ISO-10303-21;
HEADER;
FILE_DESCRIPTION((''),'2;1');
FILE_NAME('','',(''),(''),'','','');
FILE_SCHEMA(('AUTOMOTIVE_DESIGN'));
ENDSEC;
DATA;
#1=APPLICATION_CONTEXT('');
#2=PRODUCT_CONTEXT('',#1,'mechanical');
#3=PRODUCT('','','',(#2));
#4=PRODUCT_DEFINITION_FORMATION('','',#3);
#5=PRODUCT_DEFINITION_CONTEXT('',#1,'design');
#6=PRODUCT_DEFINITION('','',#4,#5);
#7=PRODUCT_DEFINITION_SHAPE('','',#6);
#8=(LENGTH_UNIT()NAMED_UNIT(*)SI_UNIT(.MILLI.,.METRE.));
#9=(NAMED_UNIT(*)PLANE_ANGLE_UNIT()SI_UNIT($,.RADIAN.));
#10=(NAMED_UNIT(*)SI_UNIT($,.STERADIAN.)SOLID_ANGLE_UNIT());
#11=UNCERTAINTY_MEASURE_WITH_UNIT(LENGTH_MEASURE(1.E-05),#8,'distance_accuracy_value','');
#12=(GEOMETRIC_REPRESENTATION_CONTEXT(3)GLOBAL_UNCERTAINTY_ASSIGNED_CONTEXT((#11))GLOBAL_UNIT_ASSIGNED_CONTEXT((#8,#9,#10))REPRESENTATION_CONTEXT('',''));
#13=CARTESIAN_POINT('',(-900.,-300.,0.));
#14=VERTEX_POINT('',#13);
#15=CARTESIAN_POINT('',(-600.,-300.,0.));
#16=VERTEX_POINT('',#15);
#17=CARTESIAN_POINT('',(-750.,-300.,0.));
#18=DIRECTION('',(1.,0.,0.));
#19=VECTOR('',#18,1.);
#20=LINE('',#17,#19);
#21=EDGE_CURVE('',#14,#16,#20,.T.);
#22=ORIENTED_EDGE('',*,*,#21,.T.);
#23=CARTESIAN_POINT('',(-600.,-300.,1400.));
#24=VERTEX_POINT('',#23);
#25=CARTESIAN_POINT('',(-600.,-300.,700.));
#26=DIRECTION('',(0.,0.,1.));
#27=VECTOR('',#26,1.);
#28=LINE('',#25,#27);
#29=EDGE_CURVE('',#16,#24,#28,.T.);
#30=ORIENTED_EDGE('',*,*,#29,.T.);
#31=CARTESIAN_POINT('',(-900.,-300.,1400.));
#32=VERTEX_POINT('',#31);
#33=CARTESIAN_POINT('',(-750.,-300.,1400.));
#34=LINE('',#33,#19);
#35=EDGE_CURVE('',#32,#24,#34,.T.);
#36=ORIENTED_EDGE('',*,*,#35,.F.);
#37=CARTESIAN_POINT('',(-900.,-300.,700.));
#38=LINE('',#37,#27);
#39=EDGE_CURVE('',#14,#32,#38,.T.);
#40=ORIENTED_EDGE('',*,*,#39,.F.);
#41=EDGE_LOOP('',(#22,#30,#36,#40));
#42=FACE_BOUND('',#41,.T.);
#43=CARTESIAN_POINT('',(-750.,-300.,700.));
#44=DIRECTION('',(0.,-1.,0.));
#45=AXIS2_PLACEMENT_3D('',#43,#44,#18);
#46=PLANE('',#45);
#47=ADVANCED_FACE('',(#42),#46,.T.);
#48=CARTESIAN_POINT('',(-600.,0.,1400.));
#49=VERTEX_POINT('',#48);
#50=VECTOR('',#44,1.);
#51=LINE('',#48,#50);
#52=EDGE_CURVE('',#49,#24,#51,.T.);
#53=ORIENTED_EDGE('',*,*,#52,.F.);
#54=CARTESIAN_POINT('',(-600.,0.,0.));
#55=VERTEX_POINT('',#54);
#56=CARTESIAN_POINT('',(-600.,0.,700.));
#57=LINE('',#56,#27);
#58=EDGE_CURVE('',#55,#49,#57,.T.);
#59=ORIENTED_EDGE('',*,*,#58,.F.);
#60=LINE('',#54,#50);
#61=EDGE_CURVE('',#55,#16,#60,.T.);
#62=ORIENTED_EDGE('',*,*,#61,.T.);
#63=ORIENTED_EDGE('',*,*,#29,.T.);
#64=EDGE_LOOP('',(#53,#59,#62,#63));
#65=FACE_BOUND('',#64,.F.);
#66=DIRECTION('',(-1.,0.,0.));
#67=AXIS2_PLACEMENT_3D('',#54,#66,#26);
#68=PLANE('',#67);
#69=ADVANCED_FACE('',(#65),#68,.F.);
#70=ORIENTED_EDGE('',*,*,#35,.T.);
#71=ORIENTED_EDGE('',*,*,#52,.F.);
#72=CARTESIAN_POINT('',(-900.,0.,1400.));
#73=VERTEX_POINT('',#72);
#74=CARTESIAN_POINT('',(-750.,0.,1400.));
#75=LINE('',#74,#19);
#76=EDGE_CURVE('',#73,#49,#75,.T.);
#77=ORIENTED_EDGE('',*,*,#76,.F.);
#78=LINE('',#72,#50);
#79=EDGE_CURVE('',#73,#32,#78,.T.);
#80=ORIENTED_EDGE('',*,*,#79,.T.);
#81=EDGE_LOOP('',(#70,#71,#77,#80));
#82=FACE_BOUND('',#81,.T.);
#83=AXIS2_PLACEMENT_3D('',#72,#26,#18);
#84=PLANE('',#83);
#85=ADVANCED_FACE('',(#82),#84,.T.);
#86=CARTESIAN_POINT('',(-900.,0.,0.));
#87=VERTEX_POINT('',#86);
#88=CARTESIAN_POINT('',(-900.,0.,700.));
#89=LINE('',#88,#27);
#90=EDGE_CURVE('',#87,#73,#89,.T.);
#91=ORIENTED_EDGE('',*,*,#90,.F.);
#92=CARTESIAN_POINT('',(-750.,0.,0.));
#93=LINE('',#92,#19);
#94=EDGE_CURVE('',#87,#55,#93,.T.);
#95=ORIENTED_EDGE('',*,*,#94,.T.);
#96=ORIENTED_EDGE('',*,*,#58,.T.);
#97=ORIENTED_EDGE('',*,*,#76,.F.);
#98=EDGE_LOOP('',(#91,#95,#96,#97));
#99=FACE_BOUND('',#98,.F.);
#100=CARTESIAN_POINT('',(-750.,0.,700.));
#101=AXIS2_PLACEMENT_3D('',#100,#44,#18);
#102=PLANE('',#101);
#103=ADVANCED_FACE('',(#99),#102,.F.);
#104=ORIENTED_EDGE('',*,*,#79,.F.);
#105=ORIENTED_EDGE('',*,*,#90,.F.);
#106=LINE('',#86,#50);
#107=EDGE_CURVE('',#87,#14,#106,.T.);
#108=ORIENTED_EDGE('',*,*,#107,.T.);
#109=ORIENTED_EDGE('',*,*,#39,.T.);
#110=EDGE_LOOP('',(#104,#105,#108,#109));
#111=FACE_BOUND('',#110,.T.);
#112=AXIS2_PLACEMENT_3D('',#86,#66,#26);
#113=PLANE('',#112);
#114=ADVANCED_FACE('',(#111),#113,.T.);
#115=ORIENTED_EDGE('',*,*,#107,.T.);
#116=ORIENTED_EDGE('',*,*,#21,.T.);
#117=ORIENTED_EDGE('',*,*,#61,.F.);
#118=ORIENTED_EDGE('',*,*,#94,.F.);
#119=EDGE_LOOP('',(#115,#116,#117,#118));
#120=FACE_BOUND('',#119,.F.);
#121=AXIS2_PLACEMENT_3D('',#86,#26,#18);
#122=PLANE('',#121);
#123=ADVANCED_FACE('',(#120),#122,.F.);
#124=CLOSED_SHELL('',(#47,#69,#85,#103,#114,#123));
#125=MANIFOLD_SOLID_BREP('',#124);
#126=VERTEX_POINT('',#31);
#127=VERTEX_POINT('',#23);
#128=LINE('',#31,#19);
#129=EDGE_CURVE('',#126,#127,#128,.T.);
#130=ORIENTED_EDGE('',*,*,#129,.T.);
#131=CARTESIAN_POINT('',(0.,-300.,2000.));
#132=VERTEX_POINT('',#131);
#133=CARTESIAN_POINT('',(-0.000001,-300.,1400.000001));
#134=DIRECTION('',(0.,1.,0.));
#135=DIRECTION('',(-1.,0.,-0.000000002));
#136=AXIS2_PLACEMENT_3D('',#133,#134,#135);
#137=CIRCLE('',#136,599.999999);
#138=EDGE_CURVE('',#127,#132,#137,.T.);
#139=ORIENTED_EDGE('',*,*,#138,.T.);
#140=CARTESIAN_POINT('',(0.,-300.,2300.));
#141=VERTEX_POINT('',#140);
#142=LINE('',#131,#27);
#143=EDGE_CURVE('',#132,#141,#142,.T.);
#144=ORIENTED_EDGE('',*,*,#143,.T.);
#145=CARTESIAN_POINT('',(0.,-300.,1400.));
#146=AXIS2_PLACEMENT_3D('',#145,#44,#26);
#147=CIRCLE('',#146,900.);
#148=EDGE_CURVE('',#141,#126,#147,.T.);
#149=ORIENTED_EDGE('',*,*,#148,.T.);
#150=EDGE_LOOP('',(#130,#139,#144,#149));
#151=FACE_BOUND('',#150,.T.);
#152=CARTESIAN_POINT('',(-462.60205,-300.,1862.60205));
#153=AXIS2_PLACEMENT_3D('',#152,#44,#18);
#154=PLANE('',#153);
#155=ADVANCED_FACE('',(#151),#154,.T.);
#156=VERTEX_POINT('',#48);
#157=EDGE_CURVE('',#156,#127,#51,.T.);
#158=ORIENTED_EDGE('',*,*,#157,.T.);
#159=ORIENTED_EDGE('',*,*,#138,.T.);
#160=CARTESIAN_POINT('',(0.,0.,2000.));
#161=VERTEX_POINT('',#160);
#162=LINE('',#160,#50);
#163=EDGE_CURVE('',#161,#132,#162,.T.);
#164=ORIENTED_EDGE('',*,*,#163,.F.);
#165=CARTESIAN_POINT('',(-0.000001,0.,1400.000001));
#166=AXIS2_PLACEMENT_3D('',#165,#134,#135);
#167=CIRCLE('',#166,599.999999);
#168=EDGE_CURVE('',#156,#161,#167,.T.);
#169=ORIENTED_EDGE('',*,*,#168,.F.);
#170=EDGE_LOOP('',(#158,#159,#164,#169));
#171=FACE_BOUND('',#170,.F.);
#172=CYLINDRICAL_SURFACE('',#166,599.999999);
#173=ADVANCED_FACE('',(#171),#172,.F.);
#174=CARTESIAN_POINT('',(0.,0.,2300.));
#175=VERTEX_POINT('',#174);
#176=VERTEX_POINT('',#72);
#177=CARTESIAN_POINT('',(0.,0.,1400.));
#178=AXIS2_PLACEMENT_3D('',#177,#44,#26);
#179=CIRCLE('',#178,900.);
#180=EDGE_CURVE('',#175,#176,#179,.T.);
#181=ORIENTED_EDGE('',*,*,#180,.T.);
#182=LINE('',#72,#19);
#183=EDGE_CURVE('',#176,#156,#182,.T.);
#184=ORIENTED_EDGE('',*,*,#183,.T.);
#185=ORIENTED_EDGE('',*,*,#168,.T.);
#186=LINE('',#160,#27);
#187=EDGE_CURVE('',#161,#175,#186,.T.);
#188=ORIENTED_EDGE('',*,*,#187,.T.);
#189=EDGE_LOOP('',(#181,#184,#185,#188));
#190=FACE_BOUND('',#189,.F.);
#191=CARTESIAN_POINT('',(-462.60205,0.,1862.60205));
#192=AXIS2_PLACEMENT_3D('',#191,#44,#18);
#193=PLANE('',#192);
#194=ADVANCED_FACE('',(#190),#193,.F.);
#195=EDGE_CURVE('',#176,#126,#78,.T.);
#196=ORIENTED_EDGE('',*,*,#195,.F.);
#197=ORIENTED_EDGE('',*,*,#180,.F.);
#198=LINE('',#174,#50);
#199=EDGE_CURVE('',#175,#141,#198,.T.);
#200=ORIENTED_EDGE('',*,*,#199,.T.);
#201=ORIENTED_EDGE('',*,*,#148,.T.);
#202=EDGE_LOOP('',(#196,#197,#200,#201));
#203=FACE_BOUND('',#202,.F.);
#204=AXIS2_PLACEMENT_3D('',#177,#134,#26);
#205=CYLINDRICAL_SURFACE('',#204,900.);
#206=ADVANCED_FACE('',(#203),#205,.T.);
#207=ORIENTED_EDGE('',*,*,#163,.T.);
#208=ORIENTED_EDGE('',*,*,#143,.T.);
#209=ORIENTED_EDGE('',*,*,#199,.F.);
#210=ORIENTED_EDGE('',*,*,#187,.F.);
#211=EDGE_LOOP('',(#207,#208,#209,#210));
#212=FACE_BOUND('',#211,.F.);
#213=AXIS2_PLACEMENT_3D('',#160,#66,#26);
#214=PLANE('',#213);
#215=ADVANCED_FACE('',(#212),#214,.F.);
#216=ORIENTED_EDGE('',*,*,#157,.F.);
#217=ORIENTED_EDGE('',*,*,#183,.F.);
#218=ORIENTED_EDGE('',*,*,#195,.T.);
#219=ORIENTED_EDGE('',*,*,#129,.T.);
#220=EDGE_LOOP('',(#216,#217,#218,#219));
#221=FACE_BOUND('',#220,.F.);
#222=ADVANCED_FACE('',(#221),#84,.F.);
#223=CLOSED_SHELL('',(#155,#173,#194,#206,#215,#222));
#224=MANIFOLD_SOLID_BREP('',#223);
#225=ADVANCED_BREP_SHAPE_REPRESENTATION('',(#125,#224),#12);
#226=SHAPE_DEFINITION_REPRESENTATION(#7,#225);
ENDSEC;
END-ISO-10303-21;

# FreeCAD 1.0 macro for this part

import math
import FreeCAD as App
import Part
import Sketcher

V = App.Vector
Q = App.Units.Quantity

doc = App.newDocument("Part")
params = doc.addObject("Spreadsheet::Sheet", "Params")
for row, (alias, value) in enumerate([
    ("sketch1_width", "300 mm"),
    ("sketch1_height", "1400 mm"),
    ("pad1_length", "300 mm"),
    ("sketch2_radius", "599.999999 mm"),
    ("sketch2_radius2", "900 mm"),
    ("pad2_length", "300 mm"),
], start=1):
    params.set(f"A{row}", alias)
    params.set(f"B{row}", "=" + value)
    params.setAlias(f"B{row}", alias)

body = doc.addObject("PartDesign::Body", "Body")

sketch1 = body.newObject("Sketcher::SketchObject", "Sketch")
sketch1.AttachmentSupport = (doc.getObject("XZ_Plane"), [""])
sketch1.MapMode = "FlatFace"
sketch1.addGeometry([
    Part.LineSegment(V(-900, 1400, 0), V(-900, 0, 0)),
    Part.LineSegment(V(-900, 0, 0), V(-600, 0, 0)),
    Part.LineSegment(V(-600, 0, 0), V(-600, 1400, 0)),
    Part.LineSegment(V(-600, 1400, 0), V(-900, 1400, 0)),
], False)
sketch1.addConstraint([
    Sketcher.Constraint("Coincident", 0, 2, 1, 1),
    Sketcher.Constraint("Coincident", 1, 2, 2, 1),
    Sketcher.Constraint("Coincident", 2, 2, 3, 1),
    Sketcher.Constraint("Coincident", 3, 2, 0, 1),
    Sketcher.Constraint("Vertical", 0),
    Sketcher.Constraint("Horizontal", 1),
    Sketcher.Constraint("Vertical", 2),
    Sketcher.Constraint("Horizontal", 3),
    Sketcher.Constraint("PointOnObject", 0, 2, -1),
    Sketcher.Constraint("DistanceX", 1, 1, 1, 2, Q("300 mm")),
    Sketcher.Constraint("DistanceY", 0, 2, 0, 1, Q("1400 mm")),
    Sketcher.Constraint("DistanceX", 0, 2, -1, 1, Q("900 mm")),
])
sketch1.setExpression("Constraints[9]", "Params.sketch1_width")
sketch1.setExpression("Constraints[10]", "Params.sketch1_height")
pad1 = body.newObject("PartDesign::Pad", "Pad")
pad1.Profile = sketch1
pad1.setExpression("Length", "Params.pad1_length")
body2 = doc.addObject("PartDesign::Body", "Body001")

sketch2 = body2.newObject("Sketcher::SketchObject", "Sketch001")
sketch2.AttachmentSupport = (doc.getObject("XZ_Plane001"), [""])
sketch2.MapMode = "FlatFace"
sketch2.addGeometry([
    Part.LineSegment(V(-900, 1400, 0), V(-600, 1400, 0)),
    Part.ArcOfCircle(Part.Circle(V(0, 1400, 0), V(0, 0, 1), 600), math.radians(90), math.radians(180)),
    Part.LineSegment(V(0, 2000, 0), V(0, 2300, 0)),
    Part.ArcOfCircle(Part.Circle(V(0, 1400, 0), V(0, 0, 1), 900), math.radians(90), math.radians(180)),
], False)
sketch2.addConstraint([
    Sketcher.Constraint("Coincident", 0, 2, 1, 2),
    Sketcher.Constraint("Coincident", 1, 1, 2, 1),
    Sketcher.Constraint("Coincident", 2, 2, 3, 1),
    Sketcher.Constraint("Coincident", 3, 2, 0, 1),
    Sketcher.Constraint("Horizontal", 0),
    Sketcher.Constraint("Vertical", 2),
    Sketcher.Constraint("Coincident", 3, 3, 1, 3),
    Sketcher.Constraint("PointOnObject", 1, 3, -2),
    Sketcher.Constraint("PointOnObject", 2, 2, -2),
    Sketcher.Constraint("Horizontal", 3, 3, 0, 2),
    Sketcher.Constraint("Radius", 1, Q("599.999999 mm")),
    Sketcher.Constraint("Radius", 3, Q("900 mm")),
    Sketcher.Constraint("DistanceY", -1, 1, 1, 3, Q("1400.000001 mm")),
])
sketch2.setExpression("Constraints[10]", "Params.sketch2_radius")
sketch2.setExpression("Constraints[11]", "Params.sketch2_radius2")
pad2 = body2.newObject("PartDesign::Pad", "Pad001")
pad2.Profile = sketch2
pad2.setExpression("Length", "Params.pad2_length")

doc.recompute()
